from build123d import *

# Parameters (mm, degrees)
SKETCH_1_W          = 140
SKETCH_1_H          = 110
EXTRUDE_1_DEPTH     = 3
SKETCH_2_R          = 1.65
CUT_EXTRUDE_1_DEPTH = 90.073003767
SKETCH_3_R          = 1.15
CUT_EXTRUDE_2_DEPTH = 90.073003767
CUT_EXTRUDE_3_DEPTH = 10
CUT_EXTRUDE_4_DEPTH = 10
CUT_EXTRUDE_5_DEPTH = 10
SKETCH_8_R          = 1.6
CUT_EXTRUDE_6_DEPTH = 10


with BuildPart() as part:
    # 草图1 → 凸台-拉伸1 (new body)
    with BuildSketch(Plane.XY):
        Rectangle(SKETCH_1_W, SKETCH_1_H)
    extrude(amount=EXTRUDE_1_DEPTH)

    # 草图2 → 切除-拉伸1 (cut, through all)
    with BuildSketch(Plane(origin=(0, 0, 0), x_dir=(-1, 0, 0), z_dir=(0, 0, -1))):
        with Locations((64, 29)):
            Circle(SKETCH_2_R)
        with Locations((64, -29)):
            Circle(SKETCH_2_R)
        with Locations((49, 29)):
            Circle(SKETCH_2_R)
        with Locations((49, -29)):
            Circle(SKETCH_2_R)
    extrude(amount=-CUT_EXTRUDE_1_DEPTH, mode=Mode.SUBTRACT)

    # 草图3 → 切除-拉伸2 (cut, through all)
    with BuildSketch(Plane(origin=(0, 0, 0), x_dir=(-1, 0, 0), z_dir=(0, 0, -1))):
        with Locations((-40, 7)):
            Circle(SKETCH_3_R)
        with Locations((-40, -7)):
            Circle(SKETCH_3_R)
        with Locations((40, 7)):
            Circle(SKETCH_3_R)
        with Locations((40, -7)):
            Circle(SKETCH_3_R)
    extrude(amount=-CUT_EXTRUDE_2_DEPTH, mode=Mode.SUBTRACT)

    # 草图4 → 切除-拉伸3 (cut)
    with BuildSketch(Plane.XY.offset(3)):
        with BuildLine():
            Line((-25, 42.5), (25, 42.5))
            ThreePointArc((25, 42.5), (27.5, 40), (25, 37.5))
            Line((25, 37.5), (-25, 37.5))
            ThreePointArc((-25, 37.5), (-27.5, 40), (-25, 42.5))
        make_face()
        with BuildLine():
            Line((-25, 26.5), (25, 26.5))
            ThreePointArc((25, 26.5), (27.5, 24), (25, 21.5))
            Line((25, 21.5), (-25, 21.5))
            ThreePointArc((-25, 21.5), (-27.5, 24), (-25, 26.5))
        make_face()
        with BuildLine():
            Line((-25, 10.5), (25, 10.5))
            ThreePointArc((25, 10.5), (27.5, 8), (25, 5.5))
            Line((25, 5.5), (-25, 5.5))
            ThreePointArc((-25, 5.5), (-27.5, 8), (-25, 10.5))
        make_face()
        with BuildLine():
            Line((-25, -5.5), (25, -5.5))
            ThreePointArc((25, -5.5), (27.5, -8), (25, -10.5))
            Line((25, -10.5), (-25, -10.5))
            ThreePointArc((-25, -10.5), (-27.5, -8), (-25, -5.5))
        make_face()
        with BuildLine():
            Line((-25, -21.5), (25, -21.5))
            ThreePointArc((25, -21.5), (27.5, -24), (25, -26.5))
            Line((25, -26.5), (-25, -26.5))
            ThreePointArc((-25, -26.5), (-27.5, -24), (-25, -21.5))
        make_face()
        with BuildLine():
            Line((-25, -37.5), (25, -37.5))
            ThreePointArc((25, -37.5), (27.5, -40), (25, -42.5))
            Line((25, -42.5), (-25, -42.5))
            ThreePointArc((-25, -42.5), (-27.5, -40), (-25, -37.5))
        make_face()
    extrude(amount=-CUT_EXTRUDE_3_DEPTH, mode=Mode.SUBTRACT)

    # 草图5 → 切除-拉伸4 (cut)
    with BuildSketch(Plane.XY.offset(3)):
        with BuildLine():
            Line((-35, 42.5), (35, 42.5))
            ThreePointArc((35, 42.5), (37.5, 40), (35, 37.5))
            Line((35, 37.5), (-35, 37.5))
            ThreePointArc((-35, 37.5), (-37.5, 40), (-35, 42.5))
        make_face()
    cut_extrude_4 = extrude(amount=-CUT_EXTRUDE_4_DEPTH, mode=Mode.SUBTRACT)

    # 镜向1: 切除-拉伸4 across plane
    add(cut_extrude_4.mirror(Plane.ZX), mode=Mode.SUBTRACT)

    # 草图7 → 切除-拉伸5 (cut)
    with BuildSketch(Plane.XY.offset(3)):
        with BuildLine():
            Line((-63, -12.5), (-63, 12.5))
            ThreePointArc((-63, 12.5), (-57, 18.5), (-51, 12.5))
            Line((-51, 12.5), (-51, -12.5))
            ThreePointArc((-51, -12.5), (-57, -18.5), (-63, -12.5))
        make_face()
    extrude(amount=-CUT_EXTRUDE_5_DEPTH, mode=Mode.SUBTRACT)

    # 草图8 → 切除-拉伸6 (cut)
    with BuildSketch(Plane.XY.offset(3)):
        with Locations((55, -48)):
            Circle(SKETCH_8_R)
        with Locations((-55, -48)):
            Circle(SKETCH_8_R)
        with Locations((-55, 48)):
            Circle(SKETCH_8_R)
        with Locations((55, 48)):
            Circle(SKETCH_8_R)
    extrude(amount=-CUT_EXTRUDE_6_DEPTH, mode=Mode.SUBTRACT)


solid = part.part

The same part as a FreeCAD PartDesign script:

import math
import FreeCAD as App
import Part
import Sketcher

V = App.Vector


def add_polygon(sketch, points):
    """Adds a closed chain of lines whose ends are joined by coincident constraints."""
    first, n = sketch.GeometryCount, len(points)
    for a, b in zip(points, points[1:] + points[:1]):
        sketch.addGeometry(Part.LineSegment(App.Vector(*a, 0), App.Vector(*b, 0)), False)
    for i in range(n):
        sketch.addConstraint(Sketcher.Constraint("Coincident", first + i, 2, first + (i + 1) % n, 1))

doc = App.newDocument("Part")
params = doc.addObject("Spreadsheet::Sheet", "Params")
for row, (alias, value) in enumerate([
    ("sketch1_width", "140 mm"),
    ("sketch1_height", "110 mm"),
    ("pad1_length", "3 mm"),
    ("sketch2_diameter", "3.3 mm"),
    ("sketch3_diameter", "2.3 mm"),
    ("sketch4_radius", "2.5 mm"),
    ("sketch4_width", "50 mm"),
    ("pocket3_length", "10 mm"),
    ("sketch5_radius", "2.5 mm"),
    ("sketch5_width", "70 mm"),
    ("pocket4_length", "10 mm"),
    ("sketch6_radius", "6 mm"),
    ("sketch6_height", "25 mm"),
    ("pocket5_length", "10 mm"),
    ("sketch7_diameter", "3.2 mm"),
    ("pocket6_length", "10 mm"),
], start=1):
    params.set(f"A{row}", alias)
    params.set(f"B{row}", "=" + value)
    params.setAlias(f"B{row}", alias)

body = doc.addObject("PartDesign::Body", "Body")

sketch1 = body.newObject("Sketcher::SketchObject", "Sketch")
sketch1.AttachmentSupport = (doc.getObject("XY_Plane"), [""])
sketch1.MapMode = "FlatFace"
add_polygon(sketch1, [(-70, 55), (-70, -55), (70, -55), (70, 55)])
sketch1.addConstraint([
    Sketcher.Constraint("Vertical", 0),
    Sketcher.Constraint("Horizontal", 1),
    Sketcher.Constraint("Vertical", 2),
    Sketcher.Constraint("Horizontal", 3),
    Sketcher.Constraint("Symmetric", 0, 2, 2, 2, -1, 1),
    Sketcher.Constraint("DistanceX", 1, 1, 1, 2, 140.0),
    Sketcher.Constraint("DistanceY", 0, 2, 0, 1, 110.0),
])
sketch1.setExpression("Constraints[9]", "Params.sketch1_width")
sketch1.setExpression("Constraints[10]", "Params.sketch1_height")
pad1 = body.newObject("PartDesign::Pad", "Pad")
pad1.Profile = sketch1
pad1.setExpression("Length", "Params.pad1_length")

sketch2 = body.newObject("Sketcher::SketchObject", "Sketch001")
sketch2.AttachmentSupport = (doc.getObject("XY_Plane"), [""])
sketch2.MapMode = "FlatFace"
sketch2.addGeometry([
    Part.Circle(V(-64, 29, 0), V(0, 0, 1), 1.6),
    Part.Circle(V(-64, -29, 0), V(0, 0, 1), 1.6),
    Part.Circle(V(-49, 29, 0), V(0, 0, 1), 1.6),
    Part.Circle(V(-49, -29, 0), V(0, 0, 1), 1.6),
], False)
sketch2.addConstraint([
    Sketcher.Constraint("Equal", 0, 1),
    Sketcher.Constraint("Equal", 1, 2),
    Sketcher.Constraint("Equal", 2, 3),
    Sketcher.Constraint("Symmetric", 0, 3, 1, 3, -1),
    Sketcher.Constraint("Symmetric", 2, 3, 3, 3, -1),
    Sketcher.Constraint("Horizontal", 0, 3, 2, 3),
    Sketcher.Constraint("Diameter", 0, 3.3),
    Sketcher.Constraint("DistanceX", 0, 3, -1, 1, 64.0),
    Sketcher.Constraint("DistanceY", -1, 1, 0, 3, 29.0),
    Sketcher.Constraint("DistanceX", 2, 3, -1, 1, 49.0),
])
sketch2.setExpression("Constraints[6]", "Params.sketch2_diameter")
pocket1 = body.newObject("PartDesign::Pocket", "Pocket")
pocket1.Profile = sketch2
pocket1.Type = "ThroughAll"
pocket1.Reversed = True

sketch3 = body.newObject("Sketcher::SketchObject", "Sketch002")
sketch3.AttachmentSupport = (doc.getObject("XY_Plane"), [""])
sketch3.MapMode = "FlatFace"
sketch3.addGeometry([
    Part.Circle(V(40, 7, 0), V(0, 0, 1), 1.1),
    Part.Circle(V(40, -7, 0), V(0, 0, 1), 1.1),
    Part.Circle(V(-40, 7, 0), V(0, 0, 1), 1.1),
    Part.Circle(V(-40, -7, 0), V(0, 0, 1), 1.1),
], False)
sketch3.addConstraint([
    Sketcher.Constraint("Equal", 0, 1),
    Sketcher.Constraint("Equal", 1, 2),
    Sketcher.Constraint("Equal", 2, 3),
    Sketcher.Constraint("Symmetric", 1, 3, 2, 3, -1, 1),
    Sketcher.Constraint("Symmetric", 0, 3, 3, 3, -1, 1),
    Sketcher.Constraint("Symmetric", 0, 3, 2, 3, -2),
    Sketcher.Constraint("Diameter", 0, 2.3),
    Sketcher.Constraint("DistanceX", -1, 1, 0, 3, 40.0),
    Sketcher.Constraint("DistanceY", -1, 1, 0, 3, 7.0),
])
sketch3.setExpression("Constraints[6]", "Params.sketch3_diameter")
pocket2 = body.newObject("PartDesign::Pocket", "Pocket001")
pocket2.Profile = sketch3
pocket2.Type = "ThroughAll"
pocket2.Reversed = True

sketch4 = body.newObject("Sketcher::SketchObject", "Sketch003")
sketch4.AttachmentSupport = (doc.getObject("XY_Plane"), [""])
sketch4.MapMode = "FlatFace"
sketch4.AttachmentOffset = App.Placement(V(0, 0, 3), App.Rotation())
sketch4.addGeometry([
    Part.LineSegment(V(25, 42.5, 0), V(-25, 42.5, 0)),
    Part.ArcOfCircle(Part.Circle(V(-25, 40, 0), V(0, 0, 1), 2.5), math.radians(90), math.radians(270)),
    Part.LineSegment(V(-25, 37.5, 0), V(25, 37.5, 0)),
    Part.ArcOfCircle(Part.Circle(V(25, 40, 0), V(0, 0, 1), 2.5), math.radians(-90), math.radians(90)),
    Part.LineSegment(V(25, 26.5, 0), V(-25, 26.5, 0)),
    Part.ArcOfCircle(Part.Circle(V(-25, 24, 0), V(0, 0, 1), 2.5), math.radians(90), math.radians(270)),
    Part.LineSegment(V(-25, 21.5, 0), V(25, 21.5, 0)),
    Part.ArcOfCircle(Part.Circle(V(25, 24, 0), V(0, 0, 1), 2.5), math.radians(-90), math.radians(90)),
    Part.LineSegment(V(25, 10.5, 0), V(-25, 10.5, 0)),
    Part.ArcOfCircle(Part.Circle(V(-25, 8, 0), V(0, 0, 1), 2.5), math.radians(90), math.radians(270)),
    Part.LineSegment(V(-25, 5.5, 0), V(25, 5.5, 0)),
    Part.ArcOfCircle(Part.Circle(V(25, 8, 0), V(0, 0, 1), 2.5), math.radians(-90), math.radians(90)),
    Part.LineSegment(V(25, -5.5, 0), V(-25, -5.5, 0)),
    Part.ArcOfCircle(Part.Circle(V(-25, -8, 0), V(0, 0, 1), 2.5), math.radians(90), math.radians(270)),
    Part.LineSegment(V(-25, -10.5, 0), V(25, -10.5, 0)),
    Part.ArcOfCircle(Part.Circle(V(25, -8, 0), V(0, 0, 1), 2.5), math.radians(-90), math.radians(90)),
    Part.LineSegment(V(25, -21.5, 0), V(-25, -21.5, 0)),
    Part.ArcOfCircle(Part.Circle(V(-25, -24, 0), V(0, 0, 1), 2.5), math.radians(90), math.radians(270)),
    Part.LineSegment(V(-25, -26.5, 0), V(25, -26.5, 0)),
    Part.ArcOfCircle(Part.Circle(V(25, -24, 0), V(0, 0, 1), 2.5), math.radians(-90), math.radians(90)),
    Part.LineSegment(V(25, -37.5, 0), V(-25, -37.5, 0)),
    Part.ArcOfCircle(Part.Circle(V(-25, -40, 0), V(0, 0, 1), 2.5), math.radians(90), math.radians(270)),
    Part.LineSegment(V(-25, -42.5, 0), V(25, -42.5, 0)),
    Part.ArcOfCircle(Part.Circle(V(25, -40, 0), V(0, 0, 1), 2.5), math.radians(-90), math.radians(90)),
], False)
sketch4.addConstraint([
    Sketcher.Constraint("Tangent", 0, 2, 1, 1),
    Sketcher.Constraint("Tangent", 1, 2, 2, 1),
    Sketcher.Constraint("Tangent", 2, 2, 3, 1),
    Sketcher.Constraint("Tangent", 3, 2, 0, 1),
    Sketcher.Constraint("Tangent", 4, 2, 5, 1),
    Sketcher.Constraint("Tangent", 5, 2, 6, 1),
    Sketcher.Constraint("Tangent", 6, 2, 7, 1),
    Sketcher.Constraint("Tangent", 7, 2, 4, 1),
    Sketcher.Constraint("Tangent", 8, 2, 9, 1),
    Sketcher.Constraint("Tangent", 9, 2, 10, 1),
    Sketcher.Constraint("Tangent", 10, 2, 11, 1),
    Sketcher.Constraint("Tangent", 11, 2, 8, 1),
    Sketcher.Constraint("Tangent", 12, 2, 13, 1),
    Sketcher.Constraint("Tangent", 13, 2, 14, 1),
    Sketcher.Constraint("Tangent", 14, 2, 15, 1),
    Sketcher.Constraint("Tangent", 15, 2, 12, 1),
    Sketcher.Constraint("Tangent", 16, 2, 17, 1),
    Sketcher.Constraint("Tangent", 17, 2, 18, 1),
    Sketcher.Constraint("Tangent", 18, 2, 19, 1),
    Sketcher.Constraint("Tangent", 19, 2, 16, 1),
    Sketcher.Constraint("Tangent", 20, 2, 21, 1),
    Sketcher.Constraint("Tangent", 21, 2, 22, 1),
    Sketcher.Constraint("Tangent", 22, 2, 23, 1),
    Sketcher.Constraint("Tangent", 23, 2, 20, 1),
    Sketcher.Constraint("Horizontal", 0),
    Sketcher.Constraint("Horizontal", 2),
    Sketcher.Constraint("Horizontal", 4),
    Sketcher.Constraint("Horizontal", 6),
    Sketcher.Constraint("Horizontal", 8),
    Sketcher.Constraint("Horizontal", 10),
    Sketcher.Constraint("Horizontal", 12),
    Sketcher.Constraint("Horizontal", 14),
    Sketcher.Constraint("Horizontal", 16),
    Sketcher.Constraint("Horizontal", 18),
    Sketcher.Constraint("Horizontal", 20),
    Sketcher.Constraint("Horizontal", 22),
    Sketcher.Constraint("Equal", 3, 5),
    Sketcher.Constraint("Equal", 7, 9),
    Sketcher.Constraint("Equal", 11, 13),
    Sketcher.Constraint("Equal", 15, 17),
    Sketcher.Constraint("Equal", 19, 21),
    Sketcher.Constraint("Symmetric", 11, 3, 13, 3, -1, 1),
    Sketcher.Constraint("Symmetric", 7, 3, 17, 3, -1, 1),
    Sketcher.Constraint("Symmetric", 3, 3, 21, 3, -1, 1),
    Sketcher.Constraint("Vertical", 1, 3, 5, 3),
    Sketcher.Constraint("Vertical", 3, 3, 7, 3),
    Sketcher.Constraint("Vertical", 5, 3, 9, 3),
    Sketcher.Constraint("Vertical", 7, 3, 11, 3),
    Sketcher.Constraint("Vertical", 9, 3, 13, 3),
    Sketcher.Constraint("Vertical", 11, 3, 15, 3),
    Sketcher.Constraint("Vertical", 15, 3, 19, 3),
    Sketcher.Constraint("Vertical", 19, 3, 23, 3),
    Sketcher.Constraint("Radius", 1, 2.5),
    Sketcher.Constraint("DistanceX", 0, 2, 0, 1, 50.0),
    Sketcher.Constraint("DistanceY", -1, 1, 1, 3, 40.0),
    Sketcher.Constraint("DistanceY", -1, 1, 5, 3, 24.0),
    Sketcher.Constraint("DistanceY", -1, 1, 9, 3, 8.0),
])
sketch4.setExpression("Constraints[52]", "Params.sketch4_radius")
sketch4.setExpression("Constraints[53]", "Params.sketch4_width")
pocket3 = body.newObject("PartDesign::Pocket", "Pocket002")
pocket3.Profile = sketch4
pocket3.setExpression("Length", "Params.pocket3_length")

sketch5 = body.newObject("Sketcher::SketchObject", "Sketch004")
sketch5.AttachmentSupport = (doc.getObject("XY_Plane"), [""])
sketch5.MapMode = "FlatFace"
sketch5.AttachmentOffset = App.Placement(V(0, 0, 3), App.Rotation())
sketch5.addGeometry([
    Part.LineSegment(V(35, 42.5, 0), V(-35, 42.5, 0)),
    Part.ArcOfCircle(Part.Circle(V(-35, 40, 0), V(0, 0, 1), 2.5), math.radians(90), math.radians(270)),
    Part.LineSegment(V(-35, 37.5, 0), V(35, 37.5, 0)),
    Part.ArcOfCircle(Part.Circle(V(35, 40, 0), V(0, 0, 1), 2.5), math.radians(-90), math.radians(90)),
], False)
sketch5.addConstraint([
    Sketcher.Constraint("Tangent", 0, 2, 1, 1),
    Sketcher.Constraint("Tangent", 1, 2, 2, 1),
    Sketcher.Constraint("Tangent", 2, 2, 3, 1),
    Sketcher.Constraint("Tangent", 3, 2, 0, 1),
    Sketcher.Constraint("Horizontal", 0),
    Sketcher.Constraint("Horizontal", 2),
    Sketcher.Constraint("Radius", 1, 2.5),
    Sketcher.Constraint("DistanceX", 0, 2, 0, 1, 70.0),
    Sketcher.Constraint("DistanceX", 1, 3, -1, 1, 35.0),
    Sketcher.Constraint("DistanceY", -1, 1, 1, 3, 40.0),
])
sketch5.setExpression("Constraints[6]", "Params.sketch5_radius")
sketch5.setExpression("Constraints[7]", "Params.sketch5_width")
pocket4 = body.newObject("PartDesign::Pocket", "Pocket003")
pocket4.Profile = sketch5
pocket4.setExpression("Length", "Params.pocket4_length")
doc.recompute()

mirrored = body.newObject("PartDesign::Mirrored", "Mirrored")
mirrored.Originals = [pocket4]
mirrored.MirrorPlane = (doc.getObject("XZ_Plane"), [""])
body.Tip = mirrored

sketch6 = body.newObject("Sketcher::SketchObject", "Sketch005")
sketch6.AttachmentSupport = (doc.getObject("XY_Plane"), [""])
sketch6.MapMode = "FlatFace"
sketch6.AttachmentOffset = App.Placement(V(0, 0, 3), App.Rotation())
sketch6.addGeometry([
    Part.LineSegment(V(-63, 12, 0), V(-63, -12, 0)),
    Part.ArcOfCircle(Part.Circle(V(-57, -12, 0), V(0, 0, 1), 6), math.radians(180), math.radians(360)),
    Part.LineSegment(V(-51, -12, 0), V(-51, 12, 0)),
    Part.ArcOfCircle(Part.Circle(V(-57, 12, 0), V(0, 0, 1), 6), math.radians(0), math.radians(180)),
], False)
sketch6.addConstraint([
    Sketcher.Constraint("Tangent", 0, 2, 1, 1),
    Sketcher.Constraint("Tangent", 1, 2, 2, 1),
    Sketcher.Constraint("Tangent", 2, 2, 3, 1),
    Sketcher.Constraint("Tangent", 3, 2, 0, 1),
    Sketcher.Constraint("Vertical", 0),
    Sketcher.Constraint("Vertical", 2),
    Sketcher.Constraint("Radius", 1, 6.0),
    Sketcher.Constraint("DistanceY", 0, 2, 0, 1, 25.0),
    Sketcher.Constraint("DistanceX", 1, 3, -1, 1, 57.0),
    Sketcher.Constraint("DistanceY", 1, 3, -1, 1, 12.5),
])
sketch6.setExpression("Constraints[6]", "Params.sketch6_radius")
sketch6.setExpression("Constraints[7]", "Params.sketch6_height")
pocket5 = body.newObject("PartDesign::Pocket", "Pocket004")
pocket5.Profile = sketch6
pocket5.setExpression("Length", "Params.pocket5_length")

sketch7 = body.newObject("Sketcher::SketchObject", "Sketch006")
sketch7.AttachmentSupport = (doc.getObject("XY_Plane"), [""])
sketch7.MapMode = "FlatFace"
sketch7.AttachmentOffset = App.Placement(V(0, 0, 3), App.Rotation())
sketch7.addGeometry([
    Part.Circle(V(55, -48, 0), V(0, 0, 1), 1.6),
    Part.Circle(V(-55, -48, 0), V(0, 0, 1), 1.6),
    Part.Circle(V(-55, 48, 0), V(0, 0, 1), 1.6),
    Part.Circle(V(55, 48, 0), V(0, 0, 1), 1.6),
], False)
sketch7.addConstraint([
    Sketcher.Constraint("Equal", 0, 1),
    Sketcher.Constraint("Equal", 1, 2),
    Sketcher.Constraint("Equal", 2, 3),
    Sketcher.Constraint("Symmetric", 0, 3, 2, 3, -1, 1),
    Sketcher.Constraint("Symmetric", 1, 3, 3, 3, -1, 1),
    Sketcher.Constraint("Symmetric", 0, 3, 1, 3, -2),
    Sketcher.Constraint("Diameter", 0, 3.2),
    Sketcher.Constraint("DistanceX", -1, 1, 0, 3, 55.0),
    Sketcher.Constraint("DistanceY", 0, 3, -1, 1, 48.0),
])
sketch7.setExpression("Constraints[6]", "Params.sketch7_diameter")
pocket6 = body.newObject("PartDesign::Pocket", "Pocket005")
pocket6.Profile = sketch7
pocket6.setExpression("Length", "Params.pocket6_length")

doc.recompute()
